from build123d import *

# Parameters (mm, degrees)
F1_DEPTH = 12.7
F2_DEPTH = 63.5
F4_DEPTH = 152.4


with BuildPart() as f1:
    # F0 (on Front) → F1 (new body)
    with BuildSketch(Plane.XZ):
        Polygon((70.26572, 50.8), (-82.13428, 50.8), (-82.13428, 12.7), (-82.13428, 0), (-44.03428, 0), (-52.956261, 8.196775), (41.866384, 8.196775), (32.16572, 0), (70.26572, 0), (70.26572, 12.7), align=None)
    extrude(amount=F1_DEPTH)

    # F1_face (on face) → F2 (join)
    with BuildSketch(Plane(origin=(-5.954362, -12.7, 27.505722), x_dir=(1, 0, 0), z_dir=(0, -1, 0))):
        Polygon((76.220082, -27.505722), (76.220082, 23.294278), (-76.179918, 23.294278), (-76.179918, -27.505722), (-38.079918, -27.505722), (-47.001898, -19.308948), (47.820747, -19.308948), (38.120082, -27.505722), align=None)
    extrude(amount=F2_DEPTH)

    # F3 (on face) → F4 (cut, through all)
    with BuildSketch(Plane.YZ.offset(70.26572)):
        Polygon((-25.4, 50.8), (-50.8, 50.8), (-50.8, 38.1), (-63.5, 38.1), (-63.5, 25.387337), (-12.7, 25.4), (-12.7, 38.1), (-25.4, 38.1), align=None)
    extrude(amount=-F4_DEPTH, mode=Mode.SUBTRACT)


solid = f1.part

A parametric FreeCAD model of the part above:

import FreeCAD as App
import Part
import Sketcher
from FreeCAD import Vector
Q = App.Units.Quantity

doc = App.newDocument("Part")
body = doc.addObject("PartDesign::Body", "Body")

sketch1 = body.newObject("Sketcher::SketchObject", "Sketch")
sketch1.AttachmentSupport = (doc.getObject("XZ_Plane"), [""])
sketch1.MapMode = "FlatFace"
sketch1.addGeometry(Part.LineSegment(Vector(70, 51, 0), Vector(-82, 51, 0)), False)
sketch1.addGeometry(Part.LineSegment(Vector(-82, 51, 0), Vector(-82, 0, 0)), False)
sketch1.addGeometry(Part.LineSegment(Vector(-82, 0, 0), Vector(-44, 0, 0)), False)
sketch1.addGeometry(Part.LineSegment(Vector(-44, 0, 0), Vector(-53, 8, 0)), False)
sketch1.addGeometry(Part.LineSegment(Vector(-53, 8, 0), Vector(42, 8, 0)), False)
sketch1.addGeometry(Part.LineSegment(Vector(42, 8, 0), Vector(32, 0, 0)), False)
sketch1.addGeometry(Part.LineSegment(Vector(32, 0, 0), Vector(70, 0, 0)), False)
sketch1.addGeometry(Part.LineSegment(Vector(70, 0, 0), Vector(70, 51, 0)), False)
sketch1.addConstraint(Sketcher.Constraint("Coincident", 0, 2, 1, 1))
sketch1.addConstraint(Sketcher.Constraint("Coincident", 1, 2, 2, 1))
sketch1.addConstraint(Sketcher.Constraint("Coincident", 2, 2, 3, 1))
sketch1.addConstraint(Sketcher.Constraint("Coincident", 3, 2, 4, 1))
sketch1.addConstraint(Sketcher.Constraint("Coincident", 4, 2, 5, 1))
sketch1.addConstraint(Sketcher.Constraint("Coincident", 5, 2, 6, 1))
sketch1.addConstraint(Sketcher.Constraint("Coincident", 6, 2, 7, 1))
sketch1.addConstraint(Sketcher.Constraint("Coincident", 7, 2, 0, 1))
sketch1.addConstraint(Sketcher.Constraint("Horizontal", 0))
sketch1.addConstraint(Sketcher.Constraint("Vertical", 1))
sketch1.addConstraint(Sketcher.Constraint("Horizontal", 2))
sketch1.addConstraint(Sketcher.Constraint("Horizontal", 4))
sketch1.addConstraint(Sketcher.Constraint("Horizontal", 6))
sketch1.addConstraint(Sketcher.Constraint("Vertical", 7))
sketch1.addConstraint(Sketcher.Constraint("PointOnObject", 1, 2, -1))
sketch1.addConstraint(Sketcher.Constraint("PointOnObject", 5, 2, -1))
sketch1.addConstraint(Sketcher.Constraint("Equal", 2, 6))
sketch1.addConstraint(Sketcher.Constraint("DistanceX", 0, 2, 0, 1, Q("6 in")))
sketch1.addConstraint(Sketcher.Constraint("DistanceY", 1, 2, 1, 1, Q("2 in")))
sketch1.addConstraint(Sketcher.Constraint("DistanceX", 2, 1, 2, 2, Q("1.5 in")))
sketch1.addConstraint(Sketcher.Constraint("Distance", 5, Q("0.5 in")))
sketch1.addConstraint(Sketcher.Constraint("DistanceX", 4, 1, 4, 2, 94.822645))
sketch1.addConstraint(Sketcher.Constraint("DistanceX", 0, 2, -1, 1, 82.13428))
sketch1.addConstraint(Sketcher.Constraint("DistanceX", 3, 2, -1, 1, 52.956261))
pad1 = body.newObject("PartDesign::Pad", "Pad")
pad1.Profile = sketch1
pad1.Length = Q("0.5 in")

sketch2 = body.newObject("Sketcher::SketchObject", "Sketch001")
sketch2.AttachmentSupport = (doc.getObject("XZ_Plane"), [""])
sketch2.MapMode = "FlatFace"
sketch2.AttachmentOffset = App.Placement(Vector(0, 0, 0.5 * 25.4), App.Rotation())
sketch2.addGeometry(Part.LineSegment(Vector(70, 0, 0), Vector(70, 51, 0)), False)
sketch2.addGeometry(Part.LineSegment(Vector(70, 51, 0), Vector(-82, 51, 0)), False)
sketch2.addGeometry(Part.LineSegment(Vector(-82, 51, 0), Vector(-82, 0, 0)), False)
sketch2.addGeometry(Part.LineSegment(Vector(-82, 0, 0), Vector(-44, 0, 0)), False)
sketch2.addGeometry(Part.LineSegment(Vector(-44, 0, 0), Vector(-53, 8, 0)), False)
sketch2.addGeometry(Part.LineSegment(Vector(-53, 8, 0), Vector(42, 8, 0)), False)
sketch2.addGeometry(Part.LineSegment(Vector(42, 8, 0), Vector(32, 0, 0)), False)
sketch2.addGeometry(Part.LineSegment(Vector(32, 0, 0), Vector(70, 0, 0)), False)
sketch2.addConstraint(Sketcher.Constraint("Coincident", 0, 2, 1, 1))
sketch2.addConstraint(Sketcher.Constraint("Coincident", 1, 2, 2, 1))
sketch2.addConstraint(Sketcher.Constraint("Coincident", 2, 2, 3, 1))
sketch2.addConstraint(Sketcher.Constraint("Coincident", 3, 2, 4, 1))
sketch2.addConstraint(Sketcher.Constraint("Coincident", 4, 2, 5, 1))
sketch2.addConstraint(Sketcher.Constraint("Coincident", 5, 2, 6, 1))
sketch2.addConstraint(Sketcher.Constraint("Coincident", 6, 2, 7, 1))
sketch2.addConstraint(Sketcher.Constraint("Coincident", 7, 2, 0, 1))
sketch2.addConstraint(Sketcher.Constraint("Vertical", 0))
sketch2.addConstraint(Sketcher.Constraint("Horizontal", 1))
sketch2.addConstraint(Sketcher.Constraint("Vertical", 2))
sketch2.addConstraint(Sketcher.Constraint("Horizontal", 3))
sketch2.addConstraint(Sketcher.Constraint("Horizontal", 5))
sketch2.addConstraint(Sketcher.Constraint("Horizontal", 7))
sketch2.addConstraint(Sketcher.Constraint("PointOnObject", 2, 2, -1))
sketch2.addConstraint(Sketcher.Constraint("PointOnObject", 6, 2, -1))
sketch2.addConstraint(Sketcher.Constraint("Equal", 3, 7))
sketch2.addConstraint(Sketcher.Constraint("DistanceX", 1, 2, 1, 1, Q("6 in")))
sketch2.addConstraint(Sketcher.Constraint("DistanceY", 0, 1, 0, 2, Q("2 in")))
sketch2.addConstraint(Sketcher.Constraint("DistanceX", 3, 1, 3, 2, Q("1.5 in")))
sketch2.addConstraint(Sketcher.Constraint("Distance", 6, Q("0.5 in")))
sketch2.addConstraint(Sketcher.Constraint("DistanceX", 5, 1, 5, 2, 94.822645))
sketch2.addConstraint(Sketcher.Constraint("DistanceX", -1, 1, 0, 2, 70.26572))
sketch2.addConstraint(Sketcher.Constraint("DistanceX", 4, 2, -1, 1, 52.95626))
pad2 = body.newObject("PartDesign::Pad", "Pad001")
pad2.Profile = sketch2
pad2.Length = Q("2.5 in")

sketch3 = body.newObject("Sketcher::SketchObject", "Sketch002")
sketch3.AttachmentSupport = (doc.getObject("YZ_Plane"), [""])
sketch3.MapMode = "FlatFace"
sketch3.AttachmentOffset = App.Placement(Vector(0, 0, 70.26572), App.Rotation())
sketch3.addGeometry(Part.LineSegment(Vector(-25, 51, 0), Vector(-51, 51, 0)), False)
sketch3.addGeometry(Part.LineSegment(Vector(-51, 51, 0), Vector(-51, 38, 0)), False)
sketch3.addGeometry(Part.LineSegment(Vector(-51, 38, 0), Vector(-64, 38, 0)), False)
sketch3.addGeometry(Part.LineSegment(Vector(-64, 38, 0), Vector(-64, 25, 0)), False)
sketch3.addGeometry(Part.LineSegment(Vector(-64, 25, 0), Vector(-13, 25, 0)), False)
sketch3.addGeometry(Part.LineSegment(Vector(-13, 25, 0), Vector(-13, 38, 0)), False)
sketch3.addGeometry(Part.LineSegment(Vector(-13, 38, 0), Vector(-25, 38, 0)), False)
sketch3.addGeometry(Part.LineSegment(Vector(-25, 38, 0), Vector(-25, 51, 0)), False)
sketch3.addConstraint(Sketcher.Constraint("Coincident", 0, 2, 1, 1))
sketch3.addConstraint(Sketcher.Constraint("Coincident", 1, 2, 2, 1))
sketch3.addConstraint(Sketcher.Constraint("Coincident", 2, 2, 3, 1))
sketch3.addConstraint(Sketcher.Constraint("Coincident", 3, 2, 4, 1))
sketch3.addConstraint(Sketcher.Constraint("Coincident", 4, 2, 5, 1))
sketch3.addConstraint(Sketcher.Constraint("Coincident", 5, 2, 6, 1))
sketch3.addConstraint(Sketcher.Constraint("Coincident", 6, 2, 7, 1))
sketch3.addConstraint(Sketcher.Constraint("Coincident", 7, 2, 0, 1))
sketch3.addConstraint(Sketcher.Constraint("Horizontal", 0))
sketch3.addConstraint(Sketcher.Constraint("Vertical", 1))
sketch3.addConstraint(Sketcher.Constraint("Horizontal", 2))
sketch3.addConstraint(Sketcher.Constraint("Vertical", 3))
sketch3.addConstraint(Sketcher.Constraint("Vertical", 5))
sketch3.addConstraint(Sketcher.Constraint("Horizontal", 6))
sketch3.addConstraint(Sketcher.Constraint("Vertical", 7))
sketch3.addConstraint(Sketcher.Constraint("Horizontal", 2, 2, 5, 2))
sketch3.addConstraint(Sketcher.Constraint("Equal", 2, 6))
sketch3.addConstraint(Sketcher.Constraint("Equal", 6, 1))
sketch3.addConstraint(Sketcher.Constraint("Equal", 1, 5))
sketch3.addConstraint(Sketcher.Constraint("DistanceX", 0, 2, 0, 1, Q("1 in")))
sketch3.addConstraint(Sketcher.Constraint("Distance", 4, Q("2.0000001 in")))
sketch3.addConstraint(Sketcher.Constraint("DistanceX", 0, 2, -1, 1, Q("2 in")))
sketch3.addConstraint(Sketcher.Constraint("DistanceY", -1, 1, 0, 2, Q("2 in")))
sketch3.addConstraint(Sketcher.Constraint("DistanceY", 3, 2, 3, 1, 12.712663))
pocket1 = body.newObject("PartDesign::Pocket", "Pocket")
pocket1.Profile = sketch3
pocket1.Type = "ThroughAll"

doc.recompute()
